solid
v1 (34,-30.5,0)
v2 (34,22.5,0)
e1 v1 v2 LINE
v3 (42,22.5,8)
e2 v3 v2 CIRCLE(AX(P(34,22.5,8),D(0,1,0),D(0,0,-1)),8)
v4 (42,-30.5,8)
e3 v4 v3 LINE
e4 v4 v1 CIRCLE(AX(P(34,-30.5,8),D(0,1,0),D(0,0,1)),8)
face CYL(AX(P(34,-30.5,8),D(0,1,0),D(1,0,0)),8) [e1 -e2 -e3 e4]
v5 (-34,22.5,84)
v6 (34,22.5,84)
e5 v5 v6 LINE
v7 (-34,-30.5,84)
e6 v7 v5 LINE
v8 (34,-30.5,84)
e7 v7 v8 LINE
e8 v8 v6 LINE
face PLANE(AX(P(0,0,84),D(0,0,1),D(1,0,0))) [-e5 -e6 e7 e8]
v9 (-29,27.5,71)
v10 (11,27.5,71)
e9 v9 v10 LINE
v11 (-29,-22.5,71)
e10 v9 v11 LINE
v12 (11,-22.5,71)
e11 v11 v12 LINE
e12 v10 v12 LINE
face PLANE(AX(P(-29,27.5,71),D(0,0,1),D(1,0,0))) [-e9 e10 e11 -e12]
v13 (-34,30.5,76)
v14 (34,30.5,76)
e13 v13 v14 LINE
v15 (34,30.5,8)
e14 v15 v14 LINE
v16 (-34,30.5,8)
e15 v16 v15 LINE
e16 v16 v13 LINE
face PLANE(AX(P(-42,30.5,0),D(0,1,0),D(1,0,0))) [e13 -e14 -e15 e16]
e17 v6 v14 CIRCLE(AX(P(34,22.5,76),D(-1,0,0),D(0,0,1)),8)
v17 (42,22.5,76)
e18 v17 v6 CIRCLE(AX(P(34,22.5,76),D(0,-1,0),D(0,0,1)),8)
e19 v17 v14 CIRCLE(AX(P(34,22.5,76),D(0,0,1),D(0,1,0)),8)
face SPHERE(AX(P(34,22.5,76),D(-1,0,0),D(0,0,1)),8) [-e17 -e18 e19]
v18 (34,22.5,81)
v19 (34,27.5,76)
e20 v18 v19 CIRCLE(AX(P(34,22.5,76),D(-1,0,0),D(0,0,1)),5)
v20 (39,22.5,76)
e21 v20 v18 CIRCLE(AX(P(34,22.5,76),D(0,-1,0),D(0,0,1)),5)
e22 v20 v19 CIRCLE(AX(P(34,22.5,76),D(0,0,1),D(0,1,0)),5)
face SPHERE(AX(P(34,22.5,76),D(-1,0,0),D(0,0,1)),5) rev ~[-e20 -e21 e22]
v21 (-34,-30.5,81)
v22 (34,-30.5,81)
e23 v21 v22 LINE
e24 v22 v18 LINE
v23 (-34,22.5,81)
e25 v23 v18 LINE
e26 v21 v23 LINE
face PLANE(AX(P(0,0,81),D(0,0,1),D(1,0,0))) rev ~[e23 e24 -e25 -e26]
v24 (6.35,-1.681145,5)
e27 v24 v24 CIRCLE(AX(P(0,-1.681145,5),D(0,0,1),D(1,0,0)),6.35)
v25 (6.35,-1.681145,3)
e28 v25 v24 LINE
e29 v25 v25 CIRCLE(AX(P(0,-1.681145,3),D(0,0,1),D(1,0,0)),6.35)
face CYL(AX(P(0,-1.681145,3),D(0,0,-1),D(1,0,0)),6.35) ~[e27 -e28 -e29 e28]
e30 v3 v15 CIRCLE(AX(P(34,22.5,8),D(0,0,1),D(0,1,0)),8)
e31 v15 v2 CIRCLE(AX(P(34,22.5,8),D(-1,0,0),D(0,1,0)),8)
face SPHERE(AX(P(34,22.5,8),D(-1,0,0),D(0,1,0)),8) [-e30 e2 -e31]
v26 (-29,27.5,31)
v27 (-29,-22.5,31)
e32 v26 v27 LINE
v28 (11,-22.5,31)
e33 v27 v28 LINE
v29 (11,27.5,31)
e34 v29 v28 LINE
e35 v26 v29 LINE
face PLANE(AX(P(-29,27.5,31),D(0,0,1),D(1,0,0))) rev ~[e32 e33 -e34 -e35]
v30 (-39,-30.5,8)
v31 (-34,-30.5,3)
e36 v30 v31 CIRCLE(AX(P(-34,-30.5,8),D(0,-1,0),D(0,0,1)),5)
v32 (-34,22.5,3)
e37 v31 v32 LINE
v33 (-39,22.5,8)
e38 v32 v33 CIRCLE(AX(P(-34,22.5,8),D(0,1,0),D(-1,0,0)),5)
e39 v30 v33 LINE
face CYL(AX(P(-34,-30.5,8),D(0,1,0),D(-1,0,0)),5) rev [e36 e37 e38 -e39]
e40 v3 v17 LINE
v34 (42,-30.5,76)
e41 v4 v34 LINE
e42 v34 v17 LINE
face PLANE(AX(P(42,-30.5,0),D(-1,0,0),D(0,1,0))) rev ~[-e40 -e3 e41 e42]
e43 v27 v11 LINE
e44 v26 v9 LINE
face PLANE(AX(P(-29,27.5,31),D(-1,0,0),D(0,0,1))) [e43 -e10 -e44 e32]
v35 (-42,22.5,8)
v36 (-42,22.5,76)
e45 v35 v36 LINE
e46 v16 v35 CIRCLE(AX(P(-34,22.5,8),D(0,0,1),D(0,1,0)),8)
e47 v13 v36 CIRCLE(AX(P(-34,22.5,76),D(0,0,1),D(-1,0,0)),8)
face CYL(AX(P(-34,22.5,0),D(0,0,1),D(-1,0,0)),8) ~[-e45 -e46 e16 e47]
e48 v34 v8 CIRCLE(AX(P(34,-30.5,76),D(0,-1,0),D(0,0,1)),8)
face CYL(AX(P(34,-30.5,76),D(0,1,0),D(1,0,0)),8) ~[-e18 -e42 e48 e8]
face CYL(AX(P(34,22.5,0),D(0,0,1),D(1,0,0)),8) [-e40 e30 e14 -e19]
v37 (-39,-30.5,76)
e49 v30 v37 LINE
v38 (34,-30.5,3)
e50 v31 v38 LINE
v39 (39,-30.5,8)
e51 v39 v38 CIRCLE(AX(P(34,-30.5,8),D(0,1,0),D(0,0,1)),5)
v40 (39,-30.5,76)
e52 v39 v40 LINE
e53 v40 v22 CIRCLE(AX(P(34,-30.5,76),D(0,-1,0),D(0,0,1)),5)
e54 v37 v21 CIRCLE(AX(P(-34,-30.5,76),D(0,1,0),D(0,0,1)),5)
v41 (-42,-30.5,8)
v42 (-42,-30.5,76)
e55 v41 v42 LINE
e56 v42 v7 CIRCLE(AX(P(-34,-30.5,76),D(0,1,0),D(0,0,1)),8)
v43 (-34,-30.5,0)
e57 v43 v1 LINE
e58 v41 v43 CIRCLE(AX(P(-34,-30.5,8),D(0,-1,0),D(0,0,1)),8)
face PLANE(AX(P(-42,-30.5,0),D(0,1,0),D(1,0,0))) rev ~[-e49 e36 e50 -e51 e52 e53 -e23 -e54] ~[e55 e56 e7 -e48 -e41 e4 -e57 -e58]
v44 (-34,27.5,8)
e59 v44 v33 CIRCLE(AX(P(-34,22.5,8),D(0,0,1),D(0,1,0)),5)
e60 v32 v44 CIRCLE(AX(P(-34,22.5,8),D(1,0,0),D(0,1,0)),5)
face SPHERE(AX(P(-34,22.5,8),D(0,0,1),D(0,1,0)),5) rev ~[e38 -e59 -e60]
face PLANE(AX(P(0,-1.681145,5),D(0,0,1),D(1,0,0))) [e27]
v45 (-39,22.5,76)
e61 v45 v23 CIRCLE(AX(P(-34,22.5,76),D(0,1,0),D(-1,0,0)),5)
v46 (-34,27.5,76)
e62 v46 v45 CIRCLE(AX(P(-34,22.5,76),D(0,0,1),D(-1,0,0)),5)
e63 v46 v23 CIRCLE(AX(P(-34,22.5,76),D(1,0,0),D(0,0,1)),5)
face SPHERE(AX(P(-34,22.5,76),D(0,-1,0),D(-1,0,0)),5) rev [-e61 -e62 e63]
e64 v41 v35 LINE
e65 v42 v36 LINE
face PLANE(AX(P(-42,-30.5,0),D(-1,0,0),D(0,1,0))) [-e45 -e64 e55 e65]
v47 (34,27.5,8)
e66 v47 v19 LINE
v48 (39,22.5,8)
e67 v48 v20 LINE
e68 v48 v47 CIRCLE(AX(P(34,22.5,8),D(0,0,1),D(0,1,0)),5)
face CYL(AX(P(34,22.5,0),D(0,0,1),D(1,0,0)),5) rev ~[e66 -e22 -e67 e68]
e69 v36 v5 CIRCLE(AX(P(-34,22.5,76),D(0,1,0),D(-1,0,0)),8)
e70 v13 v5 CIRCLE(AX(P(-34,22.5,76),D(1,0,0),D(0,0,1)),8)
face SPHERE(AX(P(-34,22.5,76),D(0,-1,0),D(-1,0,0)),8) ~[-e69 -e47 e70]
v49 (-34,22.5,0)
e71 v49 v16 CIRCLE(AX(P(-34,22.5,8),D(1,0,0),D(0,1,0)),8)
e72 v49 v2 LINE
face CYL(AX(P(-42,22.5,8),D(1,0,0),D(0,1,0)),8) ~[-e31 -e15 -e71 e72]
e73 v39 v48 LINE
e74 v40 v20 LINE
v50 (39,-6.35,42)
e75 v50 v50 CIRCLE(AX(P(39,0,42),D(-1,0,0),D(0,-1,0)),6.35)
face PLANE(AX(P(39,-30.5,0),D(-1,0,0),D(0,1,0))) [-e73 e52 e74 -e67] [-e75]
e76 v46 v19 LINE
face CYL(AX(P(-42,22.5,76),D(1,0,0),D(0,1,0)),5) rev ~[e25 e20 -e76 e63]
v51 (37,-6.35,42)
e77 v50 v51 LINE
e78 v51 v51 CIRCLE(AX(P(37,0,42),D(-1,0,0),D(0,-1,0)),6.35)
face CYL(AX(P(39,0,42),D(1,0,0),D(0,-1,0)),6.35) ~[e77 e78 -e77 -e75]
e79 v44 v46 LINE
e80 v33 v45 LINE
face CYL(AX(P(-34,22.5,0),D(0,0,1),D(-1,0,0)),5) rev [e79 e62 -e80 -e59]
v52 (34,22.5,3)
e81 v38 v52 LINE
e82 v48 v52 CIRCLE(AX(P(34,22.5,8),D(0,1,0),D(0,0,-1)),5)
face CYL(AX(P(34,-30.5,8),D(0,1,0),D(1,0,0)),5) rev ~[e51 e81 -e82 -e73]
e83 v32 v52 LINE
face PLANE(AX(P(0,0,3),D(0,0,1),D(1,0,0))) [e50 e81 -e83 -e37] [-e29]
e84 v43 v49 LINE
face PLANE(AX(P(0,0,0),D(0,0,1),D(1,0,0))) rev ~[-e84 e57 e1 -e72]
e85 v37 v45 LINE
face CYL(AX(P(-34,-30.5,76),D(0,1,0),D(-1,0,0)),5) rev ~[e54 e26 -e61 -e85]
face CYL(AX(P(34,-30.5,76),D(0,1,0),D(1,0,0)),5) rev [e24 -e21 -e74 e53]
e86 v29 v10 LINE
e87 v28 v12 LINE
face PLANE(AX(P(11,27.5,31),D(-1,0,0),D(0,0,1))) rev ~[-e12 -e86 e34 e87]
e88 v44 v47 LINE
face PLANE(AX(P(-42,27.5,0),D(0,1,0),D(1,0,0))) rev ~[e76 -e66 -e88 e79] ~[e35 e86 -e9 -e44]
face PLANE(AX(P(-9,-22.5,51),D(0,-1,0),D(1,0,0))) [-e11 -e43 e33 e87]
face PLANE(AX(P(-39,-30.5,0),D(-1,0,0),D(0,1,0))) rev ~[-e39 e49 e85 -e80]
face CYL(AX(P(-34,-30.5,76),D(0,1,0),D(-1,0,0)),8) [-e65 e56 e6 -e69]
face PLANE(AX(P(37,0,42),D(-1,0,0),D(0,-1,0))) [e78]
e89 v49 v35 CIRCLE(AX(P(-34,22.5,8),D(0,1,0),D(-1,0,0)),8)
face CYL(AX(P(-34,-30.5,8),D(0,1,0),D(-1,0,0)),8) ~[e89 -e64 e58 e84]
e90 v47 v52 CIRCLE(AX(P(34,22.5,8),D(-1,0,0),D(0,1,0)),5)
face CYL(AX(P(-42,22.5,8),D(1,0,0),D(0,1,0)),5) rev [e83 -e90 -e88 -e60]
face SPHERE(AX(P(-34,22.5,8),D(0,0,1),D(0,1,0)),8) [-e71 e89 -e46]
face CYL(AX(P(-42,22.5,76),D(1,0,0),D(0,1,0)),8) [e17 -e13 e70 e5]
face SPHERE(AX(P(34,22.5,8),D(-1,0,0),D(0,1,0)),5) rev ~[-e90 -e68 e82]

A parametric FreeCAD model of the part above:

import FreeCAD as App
import Part
import Sketcher

V = App.Vector


def edges_at(feature, points):
    """Names of the edges that pass closest to the given points."""
    edges = feature.Shape.Edges
    near = lambda p: min(range(len(edges)), key=lambda i: edges[i].distToShape(Part.Vertex(*p))[0])
    return sorted({f"Edge{near(p) + 1}" for p in points})


def faces_at(feature, points):
    """Names of the faces that lie closest to the given points."""
    faces = feature.Shape.Faces
    near = lambda p: min(range(len(faces)), key=lambda i: faces[i].distToShape(Part.Vertex(*p))[0])
    return sorted({f"Face{near(p) + 1}" for p in points})


def add_polygon(sketch, points):
    """Adds a closed chain of lines whose ends are joined by coincident constraints."""
    first, n = sketch.GeometryCount, len(points)
    for a, b in zip(points, points[1:] + points[:1]):
        sketch.addGeometry(Part.LineSegment(App.Vector(*a, 0), App.Vector(*b, 0)), False)
    for i in range(n):
        sketch.addConstraint(Sketcher.Constraint("Coincident", first + i, 2, first + (i + 1) % n, 1))

doc = App.newDocument("Part")
body = doc.addObject("PartDesign::Body", "Body")

# Sketch on XY plane
sketch1 = doc.addObject("Sketcher::SketchObject", "Sketch")
body.addObject(sketch1)
sketch1.AttachmentSupport = (doc.XY_Plane, [""])
sketch1.MapMode = "FlatFace"
add_polygon(sketch1, [(-42, 30), (-42, -30), (42, -30), (42, 30)])  # lines 0-3
sketch1.addConstraint(Sketcher.Constraint("Vertical", 0))
sketch1.addConstraint(Sketcher.Constraint("Horizontal", 1))
sketch1.addConstraint(Sketcher.Constraint("Vertical", 2))
sketch1.addConstraint(Sketcher.Constraint("Horizontal", 3))
sketch1.addConstraint(Sketcher.Constraint("Symmetric", 0, 2, 2, 2, -1, 1))
sketch1.addConstraint(Sketcher.Constraint("DistanceX", 1, 1, 1, 2, 84.0))
sketch1.addConstraint(Sketcher.Constraint("DistanceY", 0, 2, 0, 1, 61.0))
pad1 = doc.addObject("PartDesign::Pad", "Pad")
body.addObject(pad1)
pad1.Profile = sketch1
pad1.Length = 84
doc.recompute()

fillet = doc.addObject("PartDesign::Fillet", "Fillet")
body.addObject(fillet)
fillet.Base = (pad1, edges_at(pad1, [
    (-42, 0, 84),
    (-42, 30.5, 42),
    (0, 30.5, 84),
    (0, 30.5, 0),
    (-42, 0, 0),
    (42, 0, 84),
    (42, 30.5, 42),
    (42, 0, 0),
]))
fillet.Radius = 8
doc.recompute()

thickness = doc.addObject("PartDesign::Thickness", "Thickness")
body.addObject(thickness)
thickness.Base = (fillet, faces_at(fillet, [(0, -30.5, 42)]))
thickness.Value = 3
thickness.Reversed = True
thickness.Join = "Arc"

# Sketch on XY plane
sketch2 = doc.addObject("Sketcher::SketchObject", "Sketch001")
body.addObject(sketch2)
sketch2.AttachmentSupport = (doc.XY_Plane, [""])
sketch2.MapMode = "FlatFace"
sketch2.AttachmentOffset = App.Placement(V(0, 0, 3), App.Rotation())
sketch2.addGeometry(Part.Circle(V(0, -2, 0), V(0, 0, 1), 6), False)
sketch2.addConstraint(Sketcher.Constraint("PointOnObject", 0, 3, -2))
sketch2.addConstraint(Sketcher.Constraint("Diameter", 0, 12.7))
sketch2.addConstraint(Sketcher.Constraint("DistanceY", 0, 3, -1, 1, 1.681145))
pad2 = doc.addObject("PartDesign::Pad", "Pad001")
body.addObject(pad2)
pad2.Profile = sketch2
pad2.Length = 2

# Sketch on YZ plane
sketch3 = doc.addObject("Sketcher::SketchObject", "Sketch002")
body.addObject(sketch3)
sketch3.AttachmentSupport = (doc.YZ_Plane, [""])
sketch3.MapMode = "FlatFace"
sketch3.AttachmentOffset = App.Placement(V(0, 0, 39), App.Rotation())
sketch3.addGeometry(Part.Circle(V(0, 42, 0), V(0, 0, 1), 6), False)
sketch3.addConstraint(Sketcher.Constraint("PointOnObject", 0, 3, -2))
sketch3.addConstraint(Sketcher.Constraint("Diameter", 0, 12.7))
sketch3.addConstraint(Sketcher.Constraint("DistanceY", -1, 1, 0, 3, 42.0))
pad3 = doc.addObject("PartDesign::Pad", "Pad002")
body.addObject(pad3)
pad3.Profile = sketch3
pad3.Length = 2
pad3.Reversed = True

# Sketch on XZ plane
sketch4 = doc.addObject("Sketcher::SketchObject", "Sketch003")
body.addObject(sketch4)
sketch4.AttachmentSupport = (doc.XZ_Plane, [""])
sketch4.MapMode = "FlatFace"
sketch4.AttachmentOffset = App.Placement(V(0, 0, -27.5), App.Rotation())
add_polygon(sketch4, [(-29, 71), (-29, 31), (11, 31), (11, 71)])  # lines 0-3
sketch4.addConstraint(Sketcher.Constraint("Vertical", 0))
sketch4.addConstraint(Sketcher.Constraint("Horizontal", 1))
sketch4.addConstraint(Sketcher.Constraint("Vertical", 2))
sketch4.addConstraint(Sketcher.Constraint("Horizontal", 3))
sketch4.addConstraint(Sketcher.Constraint("Equal", 3, 0))
sketch4.addConstraint(Sketcher.Constraint("DistanceX", 1, 1, 1, 2, 40.0))
sketch4.addConstraint(Sketcher.Constraint("DistanceX", 0, 2, -1, 1, 29.0))
sketch4.addConstraint(Sketcher.Constraint("DistanceY", -1, 1, 0, 2, 31.0))
pad4 = doc.addObject("PartDesign::Pad", "Pad003")
body.addObject(pad4)
pad4.Profile = sketch4
pad4.Length = 50

doc.recompute()
